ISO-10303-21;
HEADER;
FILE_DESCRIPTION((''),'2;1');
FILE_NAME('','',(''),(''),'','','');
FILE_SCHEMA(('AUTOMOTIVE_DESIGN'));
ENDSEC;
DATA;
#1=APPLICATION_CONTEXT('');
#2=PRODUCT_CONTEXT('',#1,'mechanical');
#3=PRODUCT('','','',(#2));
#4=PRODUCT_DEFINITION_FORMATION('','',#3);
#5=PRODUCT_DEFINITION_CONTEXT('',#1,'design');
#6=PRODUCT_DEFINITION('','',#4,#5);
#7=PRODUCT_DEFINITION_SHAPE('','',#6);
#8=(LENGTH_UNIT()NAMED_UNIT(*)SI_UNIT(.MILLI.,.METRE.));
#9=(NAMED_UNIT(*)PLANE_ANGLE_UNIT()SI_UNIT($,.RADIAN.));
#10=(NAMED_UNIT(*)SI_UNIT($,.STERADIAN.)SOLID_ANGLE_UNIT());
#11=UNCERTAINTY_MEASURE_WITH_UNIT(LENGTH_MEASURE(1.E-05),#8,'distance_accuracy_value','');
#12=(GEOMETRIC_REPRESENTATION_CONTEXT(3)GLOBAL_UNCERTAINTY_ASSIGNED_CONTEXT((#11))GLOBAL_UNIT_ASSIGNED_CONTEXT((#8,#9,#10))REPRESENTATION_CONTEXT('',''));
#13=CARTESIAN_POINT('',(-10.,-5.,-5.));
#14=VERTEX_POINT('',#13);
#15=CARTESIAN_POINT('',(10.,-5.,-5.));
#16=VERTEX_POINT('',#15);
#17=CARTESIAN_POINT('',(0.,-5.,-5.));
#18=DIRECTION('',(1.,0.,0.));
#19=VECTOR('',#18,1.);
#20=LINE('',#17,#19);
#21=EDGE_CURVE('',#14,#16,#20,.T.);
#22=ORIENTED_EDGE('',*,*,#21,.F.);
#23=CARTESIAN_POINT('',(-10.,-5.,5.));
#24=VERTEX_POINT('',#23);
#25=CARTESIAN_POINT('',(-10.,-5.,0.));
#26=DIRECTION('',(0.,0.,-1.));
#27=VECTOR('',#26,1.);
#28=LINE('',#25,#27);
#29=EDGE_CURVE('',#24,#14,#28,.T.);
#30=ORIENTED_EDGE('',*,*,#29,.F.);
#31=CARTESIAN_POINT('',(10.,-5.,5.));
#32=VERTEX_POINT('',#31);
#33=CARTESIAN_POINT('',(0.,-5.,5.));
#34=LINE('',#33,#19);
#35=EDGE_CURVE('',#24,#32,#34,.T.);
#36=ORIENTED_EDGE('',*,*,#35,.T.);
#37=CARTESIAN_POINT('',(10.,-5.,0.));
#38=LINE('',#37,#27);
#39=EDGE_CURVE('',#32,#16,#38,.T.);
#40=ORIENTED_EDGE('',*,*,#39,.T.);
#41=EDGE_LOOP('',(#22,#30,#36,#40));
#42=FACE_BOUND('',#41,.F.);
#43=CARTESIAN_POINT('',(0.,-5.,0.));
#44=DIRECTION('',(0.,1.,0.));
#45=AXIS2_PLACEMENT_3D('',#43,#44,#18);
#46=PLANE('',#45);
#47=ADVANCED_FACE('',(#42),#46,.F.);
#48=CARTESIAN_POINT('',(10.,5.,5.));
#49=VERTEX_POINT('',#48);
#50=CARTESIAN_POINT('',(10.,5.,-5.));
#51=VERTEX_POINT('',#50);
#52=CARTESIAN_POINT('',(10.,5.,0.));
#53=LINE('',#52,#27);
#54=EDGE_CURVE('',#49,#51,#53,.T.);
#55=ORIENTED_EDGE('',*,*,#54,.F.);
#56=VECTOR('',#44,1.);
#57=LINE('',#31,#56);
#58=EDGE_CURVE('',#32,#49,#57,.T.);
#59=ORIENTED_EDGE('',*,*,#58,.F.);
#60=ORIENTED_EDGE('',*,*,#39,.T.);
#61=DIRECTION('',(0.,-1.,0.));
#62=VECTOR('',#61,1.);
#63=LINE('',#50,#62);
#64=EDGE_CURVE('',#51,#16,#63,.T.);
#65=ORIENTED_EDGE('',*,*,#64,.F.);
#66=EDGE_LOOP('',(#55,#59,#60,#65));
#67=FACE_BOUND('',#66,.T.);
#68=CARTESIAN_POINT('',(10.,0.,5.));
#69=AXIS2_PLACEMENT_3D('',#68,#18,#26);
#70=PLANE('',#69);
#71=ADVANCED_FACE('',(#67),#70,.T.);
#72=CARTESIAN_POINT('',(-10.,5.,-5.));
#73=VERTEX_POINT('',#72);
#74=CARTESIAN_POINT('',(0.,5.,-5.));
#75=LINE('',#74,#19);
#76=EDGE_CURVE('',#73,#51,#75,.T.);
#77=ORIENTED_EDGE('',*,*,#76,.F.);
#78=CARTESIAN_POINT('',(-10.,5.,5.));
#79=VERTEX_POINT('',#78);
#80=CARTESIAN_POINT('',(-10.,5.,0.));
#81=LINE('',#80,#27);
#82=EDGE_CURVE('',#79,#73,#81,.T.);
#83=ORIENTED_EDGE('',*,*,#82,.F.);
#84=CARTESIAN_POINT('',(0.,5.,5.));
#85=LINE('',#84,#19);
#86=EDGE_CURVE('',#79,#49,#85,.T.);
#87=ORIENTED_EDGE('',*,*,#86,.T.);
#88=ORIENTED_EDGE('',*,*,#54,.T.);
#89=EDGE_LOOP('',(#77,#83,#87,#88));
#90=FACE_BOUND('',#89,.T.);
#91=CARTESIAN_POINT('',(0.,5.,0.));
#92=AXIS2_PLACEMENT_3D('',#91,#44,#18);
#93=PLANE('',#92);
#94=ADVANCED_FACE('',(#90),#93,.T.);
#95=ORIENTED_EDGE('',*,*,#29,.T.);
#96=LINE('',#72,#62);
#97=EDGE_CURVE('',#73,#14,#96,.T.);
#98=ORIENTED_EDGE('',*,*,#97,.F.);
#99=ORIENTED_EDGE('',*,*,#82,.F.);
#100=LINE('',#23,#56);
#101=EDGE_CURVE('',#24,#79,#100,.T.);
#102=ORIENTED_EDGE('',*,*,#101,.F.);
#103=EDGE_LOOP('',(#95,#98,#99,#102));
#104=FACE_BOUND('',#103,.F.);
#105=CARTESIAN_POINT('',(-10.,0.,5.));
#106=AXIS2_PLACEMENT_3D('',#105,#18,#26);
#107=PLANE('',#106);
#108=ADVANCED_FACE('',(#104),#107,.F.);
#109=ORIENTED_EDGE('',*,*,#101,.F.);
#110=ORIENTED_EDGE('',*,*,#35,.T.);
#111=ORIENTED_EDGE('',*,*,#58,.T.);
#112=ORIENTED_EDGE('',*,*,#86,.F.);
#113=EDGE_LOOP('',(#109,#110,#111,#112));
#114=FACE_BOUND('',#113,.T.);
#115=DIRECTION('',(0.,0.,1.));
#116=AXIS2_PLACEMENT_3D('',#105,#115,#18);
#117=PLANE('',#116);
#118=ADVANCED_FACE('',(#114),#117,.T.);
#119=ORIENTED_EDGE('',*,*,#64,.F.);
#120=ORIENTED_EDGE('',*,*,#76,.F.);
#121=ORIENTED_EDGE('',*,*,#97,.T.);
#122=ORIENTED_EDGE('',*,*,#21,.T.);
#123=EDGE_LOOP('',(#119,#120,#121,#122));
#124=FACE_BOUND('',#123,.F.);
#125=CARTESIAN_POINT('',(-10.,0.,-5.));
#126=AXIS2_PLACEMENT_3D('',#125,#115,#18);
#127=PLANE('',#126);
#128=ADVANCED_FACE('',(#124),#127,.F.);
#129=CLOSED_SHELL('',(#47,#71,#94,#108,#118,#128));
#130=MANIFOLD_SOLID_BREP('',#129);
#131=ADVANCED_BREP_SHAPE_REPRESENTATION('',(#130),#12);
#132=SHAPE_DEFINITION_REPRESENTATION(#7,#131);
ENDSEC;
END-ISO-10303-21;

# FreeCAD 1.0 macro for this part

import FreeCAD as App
import Part
import Sketcher
from FreeCAD import Vector
Q = App.Units.Quantity


def add_polygon(sketch, points):
    """Adds a closed chain of lines whose ends are joined by coincident constraints."""
    first, n = sketch.GeometryCount, len(points)
    for a, b in zip(points, points[1:] + points[:1]):
        sketch.addGeometry(Part.LineSegment(App.Vector(*a, 0), App.Vector(*b, 0)), False)
    for i in range(n):
        sketch.addConstraint(Sketcher.Constraint("Coincident", first + i, 2, first + (i + 1) % n, 1))

doc = App.newDocument("Part")
params = doc.addObject("Spreadsheet::Sheet", "Params")
for row, (alias, value) in enumerate([
    ("sketch1_width", "20 mm"),
    ("sketch1_height", "10 mm"),
    ("pad1_length", "10 mm"),
], start=1):
    params.set(f"A{row}", alias)
    params.set(f"B{row}", "=" + value)
    params.setAlias(f"B{row}", alias)

body = doc.addObject("PartDesign::Body", "Body")

# Sketch on XZ plane
sketch1 = body.newObject("Sketcher::SketchObject", "Sketch")
sketch1.AttachmentSupport = (doc.getObject("XZ_Plane"), [""])
sketch1.MapMode = "FlatFace"
add_polygon(sketch1, [(-10, -5), (-10, 5), (10, 5), (10, -5)])  # lines 0-3
sketch1.addConstraint(Sketcher.Constraint("Vertical", 0))
sketch1.addConstraint(Sketcher.Constraint("Horizontal", 1))
sketch1.addConstraint(Sketcher.Constraint("Vertical", 2))
sketch1.addConstraint(Sketcher.Constraint("Horizontal", 3))
sketch1.addConstraint(Sketcher.Constraint("Symmetric", 0, 2, 2, 2, -1, 1))
sketch1.addConstraint(Sketcher.Constraint("DistanceX", 1, 1, 1, 2, Q("20 mm")))
sketch1.addConstraint(Sketcher.Constraint("DistanceY", 0, 1, 0, 2, Q("10 mm")))
sketch1.setExpression("Constraints[9]", "Params.sketch1_width")
sketch1.setExpression("Constraints[10]", "Params.sketch1_height")
pad1 = body.newObject("PartDesign::Pad", "Pad")
pad1.Profile = sketch1
pad1.setExpression("Length", "Params.pad1_length")
pad1.Midplane = True

doc.recompute()
